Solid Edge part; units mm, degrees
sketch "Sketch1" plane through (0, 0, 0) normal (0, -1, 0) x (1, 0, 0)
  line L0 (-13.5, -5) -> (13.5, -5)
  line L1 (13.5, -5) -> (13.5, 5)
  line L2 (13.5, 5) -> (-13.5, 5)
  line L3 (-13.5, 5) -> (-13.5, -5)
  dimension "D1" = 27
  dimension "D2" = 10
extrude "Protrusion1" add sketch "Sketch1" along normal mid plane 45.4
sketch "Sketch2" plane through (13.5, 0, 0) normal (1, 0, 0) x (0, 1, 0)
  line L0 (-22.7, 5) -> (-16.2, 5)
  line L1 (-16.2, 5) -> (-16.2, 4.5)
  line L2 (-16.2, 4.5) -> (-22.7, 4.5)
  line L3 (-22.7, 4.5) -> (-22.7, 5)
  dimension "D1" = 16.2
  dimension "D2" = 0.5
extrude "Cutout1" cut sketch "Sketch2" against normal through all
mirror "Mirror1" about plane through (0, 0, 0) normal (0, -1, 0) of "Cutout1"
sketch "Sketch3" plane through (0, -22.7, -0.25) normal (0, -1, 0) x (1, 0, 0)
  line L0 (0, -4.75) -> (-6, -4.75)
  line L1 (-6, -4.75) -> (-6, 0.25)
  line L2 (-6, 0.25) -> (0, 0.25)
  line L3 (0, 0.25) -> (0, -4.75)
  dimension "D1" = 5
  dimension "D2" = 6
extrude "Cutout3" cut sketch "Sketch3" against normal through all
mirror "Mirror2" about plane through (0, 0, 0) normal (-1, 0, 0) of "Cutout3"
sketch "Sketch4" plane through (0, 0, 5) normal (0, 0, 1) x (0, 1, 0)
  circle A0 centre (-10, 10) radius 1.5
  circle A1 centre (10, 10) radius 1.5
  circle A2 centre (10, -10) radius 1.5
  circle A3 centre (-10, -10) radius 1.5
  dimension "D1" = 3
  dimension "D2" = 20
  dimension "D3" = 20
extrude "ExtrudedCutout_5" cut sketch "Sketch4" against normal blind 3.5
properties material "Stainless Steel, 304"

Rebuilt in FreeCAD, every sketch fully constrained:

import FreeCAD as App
import Part
import Sketcher
from FreeCAD import Vector

doc = App.newDocument("Part")
body = doc.addObject("PartDesign::Body", "Body")

# Sketch on XZ plane
sketch1 = doc.addObject("Sketcher::SketchObject", "Sketch")
body.addObject(sketch1)
sketch1.AttachmentSupport = (doc.XZ_Plane, [""])
sketch1.MapMode = "FlatFace"
sketch1.addGeometry(Part.LineSegment(Vector(-13.5, 5, 0), Vector(-13.5, -5, 0)), False)
sketch1.addGeometry(Part.LineSegment(Vector(-13.5, -5, 0), Vector(13.5, -5, 0)), False)
sketch1.addGeometry(Part.LineSegment(Vector(13.5, -5, 0), Vector(13.5, 5, 0)), False)
sketch1.addGeometry(Part.LineSegment(Vector(13.5, 5, 0), Vector(-13.5, 5, 0)), False)
sketch1.addConstraint(Sketcher.Constraint("Coincident", 0, 2, 1, 1))
sketch1.addConstraint(Sketcher.Constraint("Coincident", 1, 2, 2, 1))
sketch1.addConstraint(Sketcher.Constraint("Coincident", 2, 2, 3, 1))
sketch1.addConstraint(Sketcher.Constraint("Coincident", 3, 2, 0, 1))
sketch1.addConstraint(Sketcher.Constraint("Vertical", 0))
sketch1.addConstraint(Sketcher.Constraint("Horizontal", 1))
sketch1.addConstraint(Sketcher.Constraint("Vertical", 2))
sketch1.addConstraint(Sketcher.Constraint("Horizontal", 3))
sketch1.addConstraint(Sketcher.Constraint("Symmetric", 0, 2, 2, 2, -1, 1))
sketch1.addConstraint(Sketcher.Constraint("DistanceX", 0, 2, -1, 1, 13.5))
sketch1.addConstraint(Sketcher.Constraint("DistanceY", 0, 2, 0, 1, 10.0))
pad1 = doc.addObject("PartDesign::Pad", "Pad")
body.addObject(pad1)
pad1.Profile = sketch1
pad1.Length = 45.4
pad1.Midplane = True

# Sketch on YZ plane
sketch2 = doc.addObject("Sketcher::SketchObject", "Sketch001")
body.addObject(sketch2)
sketch2.AttachmentSupport = (doc.YZ_Plane, [""])
sketch2.MapMode = "FlatFace"
sketch2.AttachmentOffset = App.Placement(Vector(0, 0, 13.5), App.Rotation())
sketch2.addGeometry(Part.LineSegment(Vector(-16.2, 5, 0), Vector(-22.7, 5, 0)), False)
sketch2.addGeometry(Part.LineSegment(Vector(-22.7, 5, 0), Vector(-22.7, 4.5, 0)), False)
sketch2.addGeometry(Part.LineSegment(Vector(-22.7, 4.5, 0), Vector(-16.2, 4.5, 0)), False)
sketch2.addGeometry(Part.LineSegment(Vector(-16.2, 4.5, 0), Vector(-16.2, 5, 0)), False)
sketch2.addConstraint(Sketcher.Constraint("Coincident", 0, 2, 1, 1))
sketch2.addConstraint(Sketcher.Constraint("Coincident", 1, 2, 2, 1))
sketch2.addConstraint(Sketcher.Constraint("Coincident", 2, 2, 3, 1))
sketch2.addConstraint(Sketcher.Constraint("Coincident", 3, 2, 0, 1))
sketch2.addConstraint(Sketcher.Constraint("Horizontal", 0))
sketch2.addConstraint(Sketcher.Constraint("Vertical", 1))
sketch2.addConstraint(Sketcher.Constraint("Horizontal", 2))
sketch2.addConstraint(Sketcher.Constraint("Vertical", 3))
sketch2.addConstraint(Sketcher.Constraint("DistanceX", 0, 2, -1, 1, 22.7))
sketch2.addConstraint(Sketcher.Constraint("DistanceX", 0, 2, 0, 1, 6.5))
sketch2.addConstraint(Sketcher.Constraint("DistanceY", 1, 2, 1, 1, 0.5))
sketch2.addConstraint(Sketcher.Constraint("DistanceY", -1, 1, 0, 2, 5.0))
pocket1 = doc.addObject("PartDesign::Pocket", "Pocket")
body.addObject(pocket1)
pocket1.Profile = sketch2
pocket1.Type = "ThroughAll"
doc.recompute()

mirrored = doc.addObject("PartDesign::Mirrored", "Mirrored")
body.addObject(mirrored)
mirrored.Originals = [pocket1]
mirrored.MirrorPlane = (doc.XZ_Plane, [""])
body.Tip = mirrored

# Sketch on XZ plane
sketch3 = doc.addObject("Sketcher::SketchObject", "Sketch002")
body.addObject(sketch3)
sketch3.AttachmentSupport = (doc.XZ_Plane, [""])
sketch3.MapMode = "FlatFace"
sketch3.AttachmentOffset = App.Placement(Vector(0, 0, 22.7), App.Rotation())
sketch3.addGeometry(Part.LineSegment(Vector(-6, -5, 0), Vector(0, -5, 0)), False)
sketch3.addGeometry(Part.LineSegment(Vector(0, -5, 0), Vector(0, 0, 0)), False)
sketch3.addGeometry(Part.LineSegment(Vector(0, 0, 0), Vector(-6, 0, 0)), False)
sketch3.addGeometry(Part.LineSegment(Vector(-6, 0, 0), Vector(-6, -5, 0)), False)
sketch3.addConstraint(Sketcher.Constraint("Coincident", 0, 2, 1, 1))
sketch3.addConstraint(Sketcher.Constraint("Coincident", 1, 2, 2, 1))
sketch3.addConstraint(Sketcher.Constraint("Coincident", 2, 2, 3, 1))
sketch3.addConstraint(Sketcher.Constraint("Coincident", 3, 2, 0, 1))
sketch3.addConstraint(Sketcher.Constraint("Horizontal", 0))
sketch3.addConstraint(Sketcher.Constraint("Vertical", 1))
sketch3.addConstraint(Sketcher.Constraint("Horizontal", 2))
sketch3.addConstraint(Sketcher.Constraint("Vertical", 3))
sketch3.addConstraint(Sketcher.Constraint("Coincident", 1, 2, -1, 1))
sketch3.addConstraint(Sketcher.Constraint("DistanceX", 0, 1, 0, 2, 6.0))
sketch3.addConstraint(Sketcher.Constraint("DistanceY", 1, 1, 1, 2, 5.0))
pocket2 = doc.addObject("PartDesign::Pocket", "Pocket001")
body.addObject(pocket2)
pocket2.Profile = sketch3
pocket2.Type = "ThroughAll"
doc.recompute()

mirrored2 = doc.addObject("PartDesign::Mirrored", "Mirrored001")
body.addObject(mirrored2)
mirrored2.Originals = [pocket2]
mirrored2.MirrorPlane = (doc.YZ_Plane, [""])
body.Tip = mirrored2

# Sketch on XY plane
sketch4 = doc.addObject("Sketcher::SketchObject", "Sketch003")
body.addObject(sketch4)
sketch4.AttachmentSupport = (doc.XY_Plane, [""])
sketch4.MapMode = "FlatFace"
sketch4.AttachmentOffset = App.Placement(Vector(0, 0, 5), App.Rotation())
sketch4.addGeometry(Part.Circle(Vector(-10, -10, 0), Vector(0, 0, 1), 1.5), False)
sketch4.addGeometry(Part.Circle(Vector(-10, 10, 0), Vector(0, 0, 1), 1.5), False)
sketch4.addGeometry(Part.Circle(Vector(10, 10, 0), Vector(0, 0, 1), 1.5), False)
sketch4.addGeometry(Part.Circle(Vector(10, -10, 0), Vector(0, 0, 1), 1.5), False)
sketch4.addConstraint(Sketcher.Constraint("Equal", 0, 1))
sketch4.addConstraint(Sketcher.Constraint("Equal", 1, 2))
sketch4.addConstraint(Sketcher.Constraint("Equal", 2, 3))
sketch4.addConstraint(Sketcher.Constraint("Symmetric", 0, 3, 2, 3, -1, 1))
sketch4.addConstraint(Sketcher.Constraint("Symmetric", 1, 3, 3, 3, -1, 1))
sketch4.addConstraint(Sketcher.Constraint("Symmetric", 1, 3, 2, 3, -2))
sketch4.addConstraint(Sketcher.Constraint("Diameter", 0, 3.0))
sketch4.addConstraint(Sketcher.Constraint("DistanceX", 0, 3, -1, 1, 10.0))
sketch4.addConstraint(Sketcher.Constraint("DistanceY", 0, 3, -1, 1, 10.0))
pocket3 = doc.addObject("PartDesign::Pocket", "Pocket002")
body.addObject(pocket3)
pocket3.Profile = sketch4
pocket3.Length = 3.5

doc.recompute()
